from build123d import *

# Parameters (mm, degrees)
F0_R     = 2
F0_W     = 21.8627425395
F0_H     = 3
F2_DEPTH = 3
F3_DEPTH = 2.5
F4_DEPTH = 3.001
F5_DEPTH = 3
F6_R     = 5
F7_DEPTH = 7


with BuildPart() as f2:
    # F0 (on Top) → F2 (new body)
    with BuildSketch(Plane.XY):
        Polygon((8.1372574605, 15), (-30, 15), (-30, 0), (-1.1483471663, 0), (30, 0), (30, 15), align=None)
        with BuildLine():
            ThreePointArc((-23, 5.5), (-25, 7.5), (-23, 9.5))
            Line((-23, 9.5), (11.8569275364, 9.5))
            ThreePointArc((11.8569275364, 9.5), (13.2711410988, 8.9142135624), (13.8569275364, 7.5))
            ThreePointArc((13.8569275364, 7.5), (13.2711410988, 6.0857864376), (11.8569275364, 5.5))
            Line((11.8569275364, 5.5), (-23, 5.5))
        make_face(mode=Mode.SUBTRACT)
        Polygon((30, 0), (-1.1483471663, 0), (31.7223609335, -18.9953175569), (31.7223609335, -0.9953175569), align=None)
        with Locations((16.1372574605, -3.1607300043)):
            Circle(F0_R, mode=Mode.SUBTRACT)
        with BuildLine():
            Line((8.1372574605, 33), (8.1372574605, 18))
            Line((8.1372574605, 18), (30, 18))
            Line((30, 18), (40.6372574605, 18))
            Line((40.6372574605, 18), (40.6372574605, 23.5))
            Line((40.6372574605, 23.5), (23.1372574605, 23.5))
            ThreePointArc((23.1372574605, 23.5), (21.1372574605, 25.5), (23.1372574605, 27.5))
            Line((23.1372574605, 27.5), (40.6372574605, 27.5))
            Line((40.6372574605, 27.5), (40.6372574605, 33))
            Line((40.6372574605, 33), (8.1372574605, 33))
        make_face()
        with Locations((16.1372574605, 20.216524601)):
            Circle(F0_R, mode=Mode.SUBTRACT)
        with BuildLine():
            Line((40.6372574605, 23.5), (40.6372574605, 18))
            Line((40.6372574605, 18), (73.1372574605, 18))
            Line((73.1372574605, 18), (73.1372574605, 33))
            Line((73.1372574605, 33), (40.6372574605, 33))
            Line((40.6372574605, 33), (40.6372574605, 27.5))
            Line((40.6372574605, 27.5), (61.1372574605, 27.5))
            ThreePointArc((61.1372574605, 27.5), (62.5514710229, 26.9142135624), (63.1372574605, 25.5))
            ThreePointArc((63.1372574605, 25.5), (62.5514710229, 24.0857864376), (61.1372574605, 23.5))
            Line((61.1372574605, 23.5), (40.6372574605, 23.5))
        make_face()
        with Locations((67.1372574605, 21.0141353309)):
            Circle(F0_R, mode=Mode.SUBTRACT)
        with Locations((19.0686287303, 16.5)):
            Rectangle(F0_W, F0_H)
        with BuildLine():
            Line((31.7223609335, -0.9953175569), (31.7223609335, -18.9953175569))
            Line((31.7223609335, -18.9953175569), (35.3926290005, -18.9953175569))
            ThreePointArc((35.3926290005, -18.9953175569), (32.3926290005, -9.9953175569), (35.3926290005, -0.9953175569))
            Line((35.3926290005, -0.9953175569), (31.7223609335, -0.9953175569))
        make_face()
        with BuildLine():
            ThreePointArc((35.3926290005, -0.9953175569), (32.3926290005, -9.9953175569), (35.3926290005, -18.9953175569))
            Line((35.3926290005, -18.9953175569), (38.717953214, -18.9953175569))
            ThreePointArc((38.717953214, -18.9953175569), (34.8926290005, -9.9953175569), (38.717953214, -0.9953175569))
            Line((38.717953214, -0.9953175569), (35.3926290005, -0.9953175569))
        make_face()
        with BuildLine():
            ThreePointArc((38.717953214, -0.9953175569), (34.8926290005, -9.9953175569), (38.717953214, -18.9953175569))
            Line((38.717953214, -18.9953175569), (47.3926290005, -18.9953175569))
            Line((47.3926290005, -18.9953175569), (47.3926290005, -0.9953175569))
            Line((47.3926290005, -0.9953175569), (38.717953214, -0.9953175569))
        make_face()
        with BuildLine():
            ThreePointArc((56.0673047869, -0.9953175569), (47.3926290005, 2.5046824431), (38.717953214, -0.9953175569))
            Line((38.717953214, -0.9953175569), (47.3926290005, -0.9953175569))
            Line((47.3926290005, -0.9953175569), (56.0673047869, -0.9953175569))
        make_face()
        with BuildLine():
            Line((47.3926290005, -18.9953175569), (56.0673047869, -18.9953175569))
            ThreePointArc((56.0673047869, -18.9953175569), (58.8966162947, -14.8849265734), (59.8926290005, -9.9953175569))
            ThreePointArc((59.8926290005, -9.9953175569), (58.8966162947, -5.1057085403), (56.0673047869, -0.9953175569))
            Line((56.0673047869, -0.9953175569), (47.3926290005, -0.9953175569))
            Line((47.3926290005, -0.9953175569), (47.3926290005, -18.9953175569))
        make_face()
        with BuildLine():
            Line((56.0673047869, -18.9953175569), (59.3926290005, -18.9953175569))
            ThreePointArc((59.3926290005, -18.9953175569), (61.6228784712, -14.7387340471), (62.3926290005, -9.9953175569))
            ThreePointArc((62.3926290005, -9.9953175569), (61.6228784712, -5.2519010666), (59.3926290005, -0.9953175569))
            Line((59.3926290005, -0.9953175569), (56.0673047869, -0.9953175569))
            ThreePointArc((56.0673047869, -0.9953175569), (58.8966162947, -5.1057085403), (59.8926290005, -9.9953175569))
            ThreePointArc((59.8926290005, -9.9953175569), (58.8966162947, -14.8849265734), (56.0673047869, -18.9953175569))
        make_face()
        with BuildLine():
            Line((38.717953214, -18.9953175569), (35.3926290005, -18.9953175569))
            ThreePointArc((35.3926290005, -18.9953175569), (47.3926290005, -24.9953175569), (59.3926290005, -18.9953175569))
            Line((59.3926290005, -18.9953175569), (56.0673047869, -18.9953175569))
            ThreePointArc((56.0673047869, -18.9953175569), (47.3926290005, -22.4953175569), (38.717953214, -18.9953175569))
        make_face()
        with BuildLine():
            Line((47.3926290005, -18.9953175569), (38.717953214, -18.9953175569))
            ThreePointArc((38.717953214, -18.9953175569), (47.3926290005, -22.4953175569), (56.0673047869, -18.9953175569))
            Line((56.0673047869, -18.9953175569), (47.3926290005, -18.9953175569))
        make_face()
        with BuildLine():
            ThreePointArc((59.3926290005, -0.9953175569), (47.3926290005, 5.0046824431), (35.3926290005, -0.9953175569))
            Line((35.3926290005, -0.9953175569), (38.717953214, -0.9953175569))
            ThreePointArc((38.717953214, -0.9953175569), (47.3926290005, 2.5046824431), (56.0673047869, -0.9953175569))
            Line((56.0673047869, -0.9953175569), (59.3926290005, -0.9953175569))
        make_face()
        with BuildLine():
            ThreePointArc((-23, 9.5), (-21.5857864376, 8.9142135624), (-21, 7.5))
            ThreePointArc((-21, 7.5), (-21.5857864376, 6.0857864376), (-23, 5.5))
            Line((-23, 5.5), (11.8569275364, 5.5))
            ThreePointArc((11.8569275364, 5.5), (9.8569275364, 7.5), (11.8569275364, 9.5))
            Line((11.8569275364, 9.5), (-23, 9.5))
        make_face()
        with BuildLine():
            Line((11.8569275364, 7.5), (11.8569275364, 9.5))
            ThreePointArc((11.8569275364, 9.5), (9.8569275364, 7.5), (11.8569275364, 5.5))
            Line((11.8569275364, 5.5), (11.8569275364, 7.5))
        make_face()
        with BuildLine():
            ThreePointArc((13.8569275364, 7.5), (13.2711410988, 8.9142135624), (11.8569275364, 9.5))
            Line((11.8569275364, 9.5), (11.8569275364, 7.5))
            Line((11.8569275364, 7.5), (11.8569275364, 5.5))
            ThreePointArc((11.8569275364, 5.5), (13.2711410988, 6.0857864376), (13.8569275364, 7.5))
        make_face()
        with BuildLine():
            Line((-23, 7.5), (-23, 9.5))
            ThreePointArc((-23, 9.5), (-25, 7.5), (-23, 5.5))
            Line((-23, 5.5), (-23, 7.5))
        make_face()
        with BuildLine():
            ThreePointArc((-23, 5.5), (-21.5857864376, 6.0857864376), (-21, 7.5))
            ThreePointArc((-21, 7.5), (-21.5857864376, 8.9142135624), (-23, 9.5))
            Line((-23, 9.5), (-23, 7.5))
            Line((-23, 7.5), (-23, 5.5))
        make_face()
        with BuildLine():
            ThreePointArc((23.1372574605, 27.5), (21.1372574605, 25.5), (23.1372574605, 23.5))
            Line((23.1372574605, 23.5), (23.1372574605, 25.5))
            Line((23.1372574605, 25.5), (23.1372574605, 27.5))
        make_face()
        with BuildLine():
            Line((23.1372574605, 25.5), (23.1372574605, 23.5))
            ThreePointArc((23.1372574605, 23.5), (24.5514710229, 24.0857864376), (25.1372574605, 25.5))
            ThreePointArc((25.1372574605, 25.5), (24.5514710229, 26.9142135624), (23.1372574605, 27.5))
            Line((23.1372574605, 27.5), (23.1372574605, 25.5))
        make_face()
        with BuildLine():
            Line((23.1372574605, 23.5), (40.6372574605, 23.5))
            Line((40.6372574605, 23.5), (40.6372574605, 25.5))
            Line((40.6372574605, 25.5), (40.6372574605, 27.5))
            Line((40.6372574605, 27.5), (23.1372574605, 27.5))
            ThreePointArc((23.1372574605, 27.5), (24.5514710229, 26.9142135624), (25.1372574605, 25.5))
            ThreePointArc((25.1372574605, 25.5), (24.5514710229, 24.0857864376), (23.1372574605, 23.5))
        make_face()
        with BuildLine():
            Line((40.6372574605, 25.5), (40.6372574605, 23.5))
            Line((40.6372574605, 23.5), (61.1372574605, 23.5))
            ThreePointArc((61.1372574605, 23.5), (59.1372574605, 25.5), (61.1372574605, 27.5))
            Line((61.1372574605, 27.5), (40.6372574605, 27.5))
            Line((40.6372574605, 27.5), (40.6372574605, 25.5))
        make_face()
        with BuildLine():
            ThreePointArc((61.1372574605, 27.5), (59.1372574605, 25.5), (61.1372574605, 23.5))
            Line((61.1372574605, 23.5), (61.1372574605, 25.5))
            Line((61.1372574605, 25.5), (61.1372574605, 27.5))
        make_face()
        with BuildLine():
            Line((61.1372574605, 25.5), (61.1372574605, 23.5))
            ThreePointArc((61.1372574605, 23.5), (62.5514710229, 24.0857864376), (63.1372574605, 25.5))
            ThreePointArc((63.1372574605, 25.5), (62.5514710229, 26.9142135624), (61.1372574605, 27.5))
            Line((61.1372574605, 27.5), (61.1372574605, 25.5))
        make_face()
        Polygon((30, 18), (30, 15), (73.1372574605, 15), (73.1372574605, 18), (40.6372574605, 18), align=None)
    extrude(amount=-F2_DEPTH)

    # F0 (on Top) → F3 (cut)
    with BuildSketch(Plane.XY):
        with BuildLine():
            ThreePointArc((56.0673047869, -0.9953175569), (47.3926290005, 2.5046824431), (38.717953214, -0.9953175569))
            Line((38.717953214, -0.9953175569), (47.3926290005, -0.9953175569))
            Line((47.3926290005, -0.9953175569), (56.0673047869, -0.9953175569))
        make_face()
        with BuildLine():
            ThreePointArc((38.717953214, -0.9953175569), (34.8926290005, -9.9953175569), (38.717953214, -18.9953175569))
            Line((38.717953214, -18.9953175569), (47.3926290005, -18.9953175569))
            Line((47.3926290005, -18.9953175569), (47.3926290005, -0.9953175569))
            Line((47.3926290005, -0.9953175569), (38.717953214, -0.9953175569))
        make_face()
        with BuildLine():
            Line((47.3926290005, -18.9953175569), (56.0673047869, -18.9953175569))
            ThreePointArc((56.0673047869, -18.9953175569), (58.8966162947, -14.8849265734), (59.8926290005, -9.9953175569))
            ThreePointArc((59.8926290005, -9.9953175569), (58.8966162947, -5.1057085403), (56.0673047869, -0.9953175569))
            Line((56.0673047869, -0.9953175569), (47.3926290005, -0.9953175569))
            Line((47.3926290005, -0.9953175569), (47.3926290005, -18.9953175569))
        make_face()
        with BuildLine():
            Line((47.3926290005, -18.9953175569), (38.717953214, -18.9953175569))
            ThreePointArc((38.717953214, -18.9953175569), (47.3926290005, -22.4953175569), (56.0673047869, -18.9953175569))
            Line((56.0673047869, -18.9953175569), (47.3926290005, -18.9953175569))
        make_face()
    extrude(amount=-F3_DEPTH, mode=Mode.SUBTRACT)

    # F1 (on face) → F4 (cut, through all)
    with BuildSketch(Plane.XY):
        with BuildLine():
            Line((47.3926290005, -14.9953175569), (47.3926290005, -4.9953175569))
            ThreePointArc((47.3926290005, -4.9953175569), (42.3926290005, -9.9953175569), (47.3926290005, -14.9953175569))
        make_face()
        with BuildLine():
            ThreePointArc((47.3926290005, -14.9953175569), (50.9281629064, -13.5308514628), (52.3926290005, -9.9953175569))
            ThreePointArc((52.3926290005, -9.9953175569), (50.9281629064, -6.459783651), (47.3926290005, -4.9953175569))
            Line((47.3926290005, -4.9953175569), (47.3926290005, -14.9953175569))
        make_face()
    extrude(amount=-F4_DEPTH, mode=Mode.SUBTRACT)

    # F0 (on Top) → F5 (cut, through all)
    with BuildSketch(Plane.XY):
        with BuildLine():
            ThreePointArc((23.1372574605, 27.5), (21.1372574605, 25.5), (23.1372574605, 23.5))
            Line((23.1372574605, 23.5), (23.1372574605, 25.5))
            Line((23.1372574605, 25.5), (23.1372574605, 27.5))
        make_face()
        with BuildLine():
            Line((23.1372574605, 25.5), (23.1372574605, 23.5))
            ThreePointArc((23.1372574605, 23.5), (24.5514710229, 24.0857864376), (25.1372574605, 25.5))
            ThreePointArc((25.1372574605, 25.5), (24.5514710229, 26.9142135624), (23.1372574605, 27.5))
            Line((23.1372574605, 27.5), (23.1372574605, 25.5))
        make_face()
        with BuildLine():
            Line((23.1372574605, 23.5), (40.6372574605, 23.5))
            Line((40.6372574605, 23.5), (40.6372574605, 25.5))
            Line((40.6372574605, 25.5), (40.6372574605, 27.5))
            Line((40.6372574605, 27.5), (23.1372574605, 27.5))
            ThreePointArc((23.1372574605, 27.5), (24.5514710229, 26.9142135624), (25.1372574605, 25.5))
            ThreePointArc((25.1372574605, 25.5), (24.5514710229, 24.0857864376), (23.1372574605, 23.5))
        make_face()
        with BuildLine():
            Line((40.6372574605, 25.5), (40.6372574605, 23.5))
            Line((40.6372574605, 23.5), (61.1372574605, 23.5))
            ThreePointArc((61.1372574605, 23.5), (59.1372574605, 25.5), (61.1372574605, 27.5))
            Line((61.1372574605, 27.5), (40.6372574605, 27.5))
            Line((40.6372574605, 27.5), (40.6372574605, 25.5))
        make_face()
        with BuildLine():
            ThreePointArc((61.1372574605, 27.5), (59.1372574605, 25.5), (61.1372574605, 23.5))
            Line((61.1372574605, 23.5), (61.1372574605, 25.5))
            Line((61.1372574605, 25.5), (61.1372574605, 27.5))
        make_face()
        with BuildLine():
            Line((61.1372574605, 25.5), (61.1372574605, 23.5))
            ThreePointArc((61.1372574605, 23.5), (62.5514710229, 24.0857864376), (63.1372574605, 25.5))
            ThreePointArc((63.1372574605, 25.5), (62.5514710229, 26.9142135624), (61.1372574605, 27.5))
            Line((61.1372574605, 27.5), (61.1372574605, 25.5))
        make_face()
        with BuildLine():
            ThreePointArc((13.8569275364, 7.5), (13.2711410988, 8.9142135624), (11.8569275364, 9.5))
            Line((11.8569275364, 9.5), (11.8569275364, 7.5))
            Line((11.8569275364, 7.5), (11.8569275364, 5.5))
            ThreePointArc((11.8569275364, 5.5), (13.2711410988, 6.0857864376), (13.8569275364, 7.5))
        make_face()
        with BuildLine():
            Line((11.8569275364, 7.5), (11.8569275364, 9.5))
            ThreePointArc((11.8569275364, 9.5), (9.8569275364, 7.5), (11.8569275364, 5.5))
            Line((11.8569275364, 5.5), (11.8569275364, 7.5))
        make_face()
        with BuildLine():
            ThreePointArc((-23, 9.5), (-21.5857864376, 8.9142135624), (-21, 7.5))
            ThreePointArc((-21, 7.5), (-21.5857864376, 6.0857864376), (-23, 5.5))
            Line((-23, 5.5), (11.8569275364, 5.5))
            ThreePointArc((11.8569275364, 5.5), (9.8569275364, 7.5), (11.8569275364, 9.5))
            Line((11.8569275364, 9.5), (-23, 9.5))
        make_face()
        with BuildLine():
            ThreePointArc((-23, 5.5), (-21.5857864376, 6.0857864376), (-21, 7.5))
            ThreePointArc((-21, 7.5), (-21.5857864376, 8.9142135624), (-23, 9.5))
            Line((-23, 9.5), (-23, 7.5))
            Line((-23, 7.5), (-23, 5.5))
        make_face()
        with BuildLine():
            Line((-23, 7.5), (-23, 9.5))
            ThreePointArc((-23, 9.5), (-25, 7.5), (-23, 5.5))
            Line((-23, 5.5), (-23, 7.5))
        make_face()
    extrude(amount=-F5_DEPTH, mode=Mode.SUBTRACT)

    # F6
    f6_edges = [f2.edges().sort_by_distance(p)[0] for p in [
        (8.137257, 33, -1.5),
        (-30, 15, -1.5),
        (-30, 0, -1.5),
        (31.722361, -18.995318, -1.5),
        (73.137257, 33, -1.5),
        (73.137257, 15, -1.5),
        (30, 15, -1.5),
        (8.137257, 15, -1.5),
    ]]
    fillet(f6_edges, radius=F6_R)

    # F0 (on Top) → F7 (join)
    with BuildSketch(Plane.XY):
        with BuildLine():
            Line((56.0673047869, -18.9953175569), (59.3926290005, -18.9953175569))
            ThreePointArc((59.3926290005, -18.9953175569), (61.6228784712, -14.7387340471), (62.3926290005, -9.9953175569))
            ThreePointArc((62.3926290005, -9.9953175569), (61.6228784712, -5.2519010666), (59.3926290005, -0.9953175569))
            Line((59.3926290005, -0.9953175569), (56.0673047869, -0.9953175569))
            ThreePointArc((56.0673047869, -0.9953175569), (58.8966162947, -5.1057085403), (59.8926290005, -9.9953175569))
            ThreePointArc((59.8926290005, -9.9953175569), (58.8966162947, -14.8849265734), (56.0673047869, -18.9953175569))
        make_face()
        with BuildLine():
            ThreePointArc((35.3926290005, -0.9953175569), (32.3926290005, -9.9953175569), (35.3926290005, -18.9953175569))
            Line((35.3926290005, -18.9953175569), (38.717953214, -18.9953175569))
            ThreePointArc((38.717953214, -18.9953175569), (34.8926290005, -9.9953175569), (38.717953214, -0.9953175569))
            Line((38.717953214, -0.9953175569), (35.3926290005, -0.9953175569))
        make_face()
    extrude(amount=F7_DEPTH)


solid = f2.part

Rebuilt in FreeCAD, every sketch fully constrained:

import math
import FreeCAD as App
import Part
import Sketcher
from FreeCAD import Vector
Q = App.Units.Quantity


def edges_at(feature, points):
    """Names of the edges that pass closest to the given points."""
    edges = feature.Shape.Edges
    near = lambda p: min(range(len(edges)), key=lambda i: edges[i].distToShape(Part.Vertex(*p))[0])
    return sorted({f"Edge{near(p) + 1}" for p in points})

doc = App.newDocument("Part")
body = doc.addObject("PartDesign::Body", "Body")

sketch1 = body.newObject("Sketcher::SketchObject", "Sketch")
sketch1.AttachmentSupport = (doc.getObject("XY_Plane"), [""])
sketch1.MapMode = "FlatFace"
sketch1.addGeometry([
    Part.LineSegment(Vector(8.1, 15, 0), Vector(-30, 15, 0)),
    Part.LineSegment(Vector(-30, 15, 0), Vector(-30, 0, 0)),
    Part.LineSegment(Vector(-30, 0, 0), Vector(-1.1, 0, 0)),
    Part.LineSegment(Vector(-1.1, 0, 0), Vector(31.7, -19, 0)),
    Part.LineSegment(Vector(31.7, -19, 0), Vector(35.4, -19, 0)),
    Part.ArcOfCircle(Part.Circle(Vector(47.4, -10, 0), Vector(0, 0, 1), 15), math.radians(-143), math.radians(-37)),
    Part.ArcOfCircle(Part.Circle(Vector(47.4, -10, 0), Vector(0, 0, 1), 15), math.radians(-37), math.radians(0)),
    Part.ArcOfCircle(Part.Circle(Vector(47.4, -10, 0), Vector(0, 0, 1), 15), math.radians(0), math.radians(37)),
    Part.ArcOfCircle(Part.Circle(Vector(47.4, -10, 0), Vector(0, 0, 1), 15), math.radians(37), math.radians(143)),
    Part.LineSegment(Vector(35.4, -1, 0), Vector(31.7, -1, 0)),
    Part.LineSegment(Vector(31.7, -1, 0), Vector(30, 0, 0)),
    Part.LineSegment(Vector(30, 0, 0), Vector(30, 15, 0)),
    Part.LineSegment(Vector(30, 15, 0), Vector(73.1, 15, 0)),
    Part.LineSegment(Vector(73.1, 15, 0), Vector(73.1, 33, 0)),
    Part.LineSegment(Vector(73.1, 33, 0), Vector(8.1, 33, 0)),
    Part.LineSegment(Vector(8.1, 33, 0), Vector(8.1, 18, 0)),
    Part.LineSegment(Vector(8.1, 18, 0), Vector(8.1, 15, 0)),
    Part.Circle(Vector(16.1, -3.2, 0), Vector(0, 0, 1), 2),
    Part.Circle(Vector(16.1, 20.2, 0), Vector(0, 0, 1), 2),
    Part.Circle(Vector(67.1, 21, 0), Vector(0, 0, 1), 2),
], False)
sketch1.addConstraint([
    Sketcher.Constraint("Coincident", 0, 2, 1, 1),
    Sketcher.Constraint("Coincident", 1, 2, 2, 1),
    Sketcher.Constraint("Coincident", 2, 2, 3, 1),
    Sketcher.Constraint("Coincident", 3, 2, 4, 1),
    Sketcher.Constraint("Coincident", 4, 2, 5, 1),
    Sketcher.Constraint("Tangent", 5, 2, 6, 1),
    Sketcher.Constraint("Tangent", 6, 2, 7, 1),
    Sketcher.Constraint("Tangent", 7, 2, 8, 1),
    Sketcher.Constraint("Coincident", 8, 2, 9, 1),
    Sketcher.Constraint("Coincident", 9, 2, 10, 1),
    Sketcher.Constraint("Coincident", 10, 2, 11, 1),
    Sketcher.Constraint("Coincident", 11, 2, 12, 1),
    Sketcher.Constraint("Coincident", 12, 2, 13, 1),
    Sketcher.Constraint("Coincident", 13, 2, 14, 1),
    Sketcher.Constraint("Coincident", 14, 2, 15, 1),
    Sketcher.Constraint("Coincident", 15, 2, 16, 1),
    Sketcher.Constraint("Coincident", 16, 2, 0, 1),
    Sketcher.Constraint("Horizontal", 0),
    Sketcher.Constraint("Vertical", 1),
    Sketcher.Constraint("Horizontal", 2),
    Sketcher.Constraint("Horizontal", 4),
    Sketcher.Constraint("Horizontal", 9),
    Sketcher.Constraint("Vertical", 11),
    Sketcher.Constraint("Horizontal", 12),
    Sketcher.Constraint("Vertical", 13),
    Sketcher.Constraint("Horizontal", 14),
    Sketcher.Constraint("Vertical", 15),
    Sketcher.Constraint("Vertical", 16),
    Sketcher.Constraint("Coincident", 7, 3, 5, 3),
    Sketcher.Constraint("Equal", 7, 8),
    Sketcher.Constraint("Equal", 17, 18),
    Sketcher.Constraint("Equal", 18, 19),
    Sketcher.Constraint("Symmetric", 1, 2, 10, 2, -1, 1),
    Sketcher.Constraint("PointOnObject", 1, 2, -1),
    Sketcher.Constraint("Parallel", 3, 10),
    Sketcher.Constraint("Horizontal", 4, 2, 5, 2),
    Sketcher.Constraint("Horizontal", 8, 3, 6, 2),
    Sketcher.Constraint("Horizontal", 7, 2, 8, 2),
    Sketcher.Constraint("Horizontal", 0, 2, 11, 2),
    Sketcher.Constraint("Vertical", 17, 3, 18, 3),
    Sketcher.Constraint("Vertical", 5, 2, 7, 2),
    Sketcher.Constraint("Vertical", 3, 2, 9, 2),
    Sketcher.Constraint("Equal", 11, 15),
    Sketcher.Constraint("Diameter", 17, Q("4 mm")),
    Sketcher.Constraint("Radius", 5, Q("15 mm")),
    Sketcher.Constraint("DistanceX", 14, 2, 14, 1, Q("65 mm")),
    Sketcher.Constraint("DistanceY", 1, 2, 1, 1, Q("15 mm")),
    Sketcher.Constraint("DistanceY", 13, 1, 13, 2, Q("18 mm")),
    Sketcher.Constraint("DistanceX", 0, 2, -1, 1, Q("30 mm")),
    Sketcher.Constraint("DistanceX", 18, 3, 19, 3, Q("51 mm")),
    Sketcher.Constraint("DistanceY", 3, 2, 6, 3, Q("9 mm")),
    Sketcher.Constraint("DistanceX", 19, 3, 12, 2, Q("6 mm")),
    Sketcher.Constraint("DistanceX", 4, 1, 4, 2, Q("3.670268 mm")),
    Sketcher.Constraint("Distance", 3, Q("37.96453 mm")),
    Sketcher.Constraint("DistanceX", 0, 2, 0, 1, Q("38.137257 mm")),
    Sketcher.Constraint("DistanceX", 2, 1, 2, 2, Q("28.851653 mm")),
    Sketcher.Constraint("DistanceY", 17, 3, -1, 1, Q("3.16073 mm")),
    Sketcher.Constraint("DistanceY", 18, 3, 19, 3, Q("0.797611 mm")),
    Sketcher.Constraint("DistanceY", -1, 1, 18, 3, Q("20.216525 mm")),
])
pad1 = body.newObject("PartDesign::Pad", "Pad")
pad1.Profile = sketch1
pad1.Length = 3
pad1.Reversed = True

sketch2 = body.newObject("Sketcher::SketchObject", "Sketch001")
sketch2.AttachmentSupport = (doc.getObject("XY_Plane"), [""])
sketch2.MapMode = "FlatFace"
sketch2.addGeometry([
    Part.ArcOfCircle(Part.Circle(Vector(47, -10, 0), Vector(0, 0, 1), 12), math.radians(46), math.radians(134)),
    Part.ArcOfCircle(Part.Circle(Vector(47, -10, 0), Vector(0, 0, 1), 12), math.radians(134), math.radians(226)),
    Part.ArcOfCircle(Part.Circle(Vector(47, -10, 0), Vector(0, 0, 1), 12), math.radians(-134), math.radians(-46)),
    Part.ArcOfCircle(Part.Circle(Vector(47, -10, 0), Vector(0, 0, 1), 12), math.radians(-46), math.radians(0)),
    Part.ArcOfCircle(Part.Circle(Vector(47, -10, 0), Vector(0, 0, 1), 12), math.radians(0), math.radians(46)),
], False)
sketch2.addConstraint([
    Sketcher.Constraint("Tangent", 0, 2, 1, 1),
    Sketcher.Constraint("Tangent", 1, 2, 2, 1),
    Sketcher.Constraint("Tangent", 2, 2, 3, 1),
    Sketcher.Constraint("Tangent", 3, 2, 4, 1),
    Sketcher.Constraint("Tangent", 4, 2, 0, 1),
    Sketcher.Constraint("Coincident", 2, 3, 0, 3),
    Sketcher.Constraint("Horizontal", 1, 2, 2, 2),
    Sketcher.Constraint("Horizontal", 4, 3, 3, 2),
    Sketcher.Constraint("Horizontal", 0, 2, 4, 2),
    Sketcher.Constraint("Vertical", 0, 2, 1, 2),
    Sketcher.Constraint("Radius", 0, Q("12.5 mm")),
    Sketcher.Constraint("DistanceY", 0, 3, 0, 2, Q("9 mm")),
    Sketcher.Constraint("DistanceX", -1, 1, 0, 3, Q("47.392629 mm")),
    Sketcher.Constraint("DistanceY", 0, 3, -1, 1, Q("9.995318 mm")),
])
pocket1 = body.newObject("PartDesign::Pocket", "Pocket")
pocket1.Profile = sketch2
pocket1.Length = 2.5

sketch3 = body.newObject("Sketcher::SketchObject", "Sketch002")
sketch3.AttachmentSupport = (doc.getObject("XY_Plane"), [""])
sketch3.MapMode = "FlatFace"
sketch3.addGeometry([
    Part.ArcOfCircle(Part.Circle(Vector(47, -10, 0), Vector(0, 0, 1), 5), math.radians(90), math.radians(270)),
    Part.ArcOfCircle(Part.Circle(Vector(47, -10, 0), Vector(0, 0, 1), 5), math.radians(-90), math.radians(0)),
    Part.ArcOfCircle(Part.Circle(Vector(47, -10, 0), Vector(0, 0, 1), 5), math.radians(0), math.radians(90)),
], False)
sketch3.addConstraint([
    Sketcher.Constraint("Tangent", 0, 2, 1, 1),
    Sketcher.Constraint("Tangent", 1, 2, 2, 1),
    Sketcher.Constraint("Tangent", 2, 2, 0, 1),
    Sketcher.Constraint("Horizontal", 2, 3, 1, 2),
    Sketcher.Constraint("Vertical", 2, 3, 0, 2),
    Sketcher.Constraint("Vertical", 0, 2, 2, 2),
    Sketcher.Constraint("Radius", 0, Q("5 mm")),
    Sketcher.Constraint("DistanceX", -1, 1, 0, 3, Q("47.392629 mm")),
    Sketcher.Constraint("DistanceY", 0, 3, -1, 1, Q("9.995318 mm")),
])
pocket2 = body.newObject("PartDesign::Pocket", "Pocket001")
pocket2.Profile = sketch3
pocket2.Type = "ThroughAll"

sketch4 = body.newObject("Sketcher::SketchObject", "Sketch003")
sketch4.AttachmentSupport = (doc.getObject("XY_Plane"), [""])
sketch4.MapMode = "FlatFace"
sketch4.addGeometry([
    Part.ArcOfCircle(Part.Circle(Vector(23.1, 25.5, 0), Vector(0, 0, 1), 2), math.radians(90), math.radians(270)),
    Part.LineSegment(Vector(23.1, 23.5, 0), Vector(61.1, 23.5, 0)),
    Part.ArcOfCircle(Part.Circle(Vector(61.1, 25.5, 0), Vector(0, 0, 1), 2), math.radians(-90), math.radians(0)),
    Part.ArcOfCircle(Part.Circle(Vector(61.1, 25.5, 0), Vector(0, 0, 1), 2), math.radians(0), math.radians(90)),
    Part.LineSegment(Vector(61.1, 27.5, 0), Vector(23.1, 27.5, 0)),
    Part.ArcOfCircle(Part.Circle(Vector(11.9, 7.5, 0), Vector(0, 0, 1), 2), math.radians(0), math.radians(90)),
    Part.LineSegment(Vector(11.9, 9.5, 0), Vector(-23, 9.5, 0)),
    Part.ArcOfCircle(Part.Circle(Vector(-23, 7.5, 0), Vector(0, 0, 1), 2), math.radians(90), math.radians(270)),
    Part.LineSegment(Vector(-23, 5.5, 0), Vector(11.9, 5.5, 0)),
    Part.ArcOfCircle(Part.Circle(Vector(11.9, 7.5, 0), Vector(0, 0, 1), 2), math.radians(-90), math.radians(0)),
], False)
sketch4.addConstraint([
    Sketcher.Constraint("Tangent", 0, 2, 1, 1),
    Sketcher.Constraint("Tangent", 1, 2, 2, 1),
    Sketcher.Constraint("Tangent", 2, 2, 3, 1),
    Sketcher.Constraint("Tangent", 3, 2, 4, 1),
    Sketcher.Constraint("Tangent", 4, 2, 0, 1),
    Sketcher.Constraint("Tangent", 5, 2, 6, 1),
    Sketcher.Constraint("Tangent", 6, 2, 7, 1),
    Sketcher.Constraint("Tangent", 7, 2, 8, 1),
    Sketcher.Constraint("Tangent", 8, 2, 9, 1),
    Sketcher.Constraint("Tangent", 9, 2, 5, 1),
    Sketcher.Constraint("Horizontal", 1),
    Sketcher.Constraint("Horizontal", 4),
    Sketcher.Constraint("Horizontal", 6),
    Sketcher.Constraint("Horizontal", 8),
    Sketcher.Constraint("Equal", 0, 2),
    Sketcher.Constraint("Equal", 3, 5),
    Sketcher.Constraint("Equal", 5, 7),
    Sketcher.Constraint("Horizontal", 3, 3, 2, 2),
    Sketcher.Constraint("Horizontal", 7, 3, 9, 2),
    Sketcher.Constraint("Radius", 0, Q("2 mm")),
    Sketcher.Constraint("DistanceX", 1, 1, 1, 2, Q("38 mm")),
    Sketcher.Constraint("DistanceX", 7, 3, -1, 1, Q("23 mm")),
    Sketcher.Constraint("DistanceY", 5, 3, 0, 3, Q("18 mm")),
    Sketcher.Constraint("DistanceY", -1, 1, 0, 3, Q("25.5 mm")),
    Sketcher.Constraint("DistanceX", 6, 2, 6, 1, Q("34.856928 mm")),
    Sketcher.Constraint("DistanceX", 5, 3, 0, 3, Q("11.28033 mm")),
])
pocket3 = body.newObject("PartDesign::Pocket", "Pocket002")
pocket3.Profile = sketch4
pocket3.Type = "ThroughAll"
doc.recompute()

fillet = body.newObject("PartDesign::Fillet", "Fillet")
fillet.Base = (pocket3, edges_at(pocket3, [
    (8.137, 33, -1.5),
    (-30, 15, -1.5),
    (-30, 0, -1.5),
    (31.722, -18.995, -1.5),
    (73.137, 33, -1.5),
    (73.137, 15, -1.5),
    (30, 15, -1.5),
    (8.137, 15, -1.5),
]))
fillet.Radius = 5

sketch5 = body.newObject("Sketcher::SketchObject", "Sketch004")
sketch5.AttachmentSupport = (doc.getObject("XY_Plane"), [""])
sketch5.MapMode = "FlatFace"
sketch5.addGeometry([
    Part.LineSegment(Vector(56.1, -19, 0), Vector(59.4, -19, 0)),
    Part.ArcOfCircle(Part.Circle(Vector(47.4, -10, 0), Vector(0, 0, 1), 15), math.radians(-37), math.radians(0)),
    Part.ArcOfCircle(Part.Circle(Vector(47.4, -10, 0), Vector(0, 0, 1), 15), math.radians(0), math.radians(37)),
    Part.LineSegment(Vector(59.4, -1, 0), Vector(56.1, -1, 0)),
    Part.ArcOfCircle(Part.Circle(Vector(47.4, -10, 0), Vector(0, 0, 1), 12.5), math.radians(0), math.radians(46)),
    Part.ArcOfCircle(Part.Circle(Vector(47.4, -10, 0), Vector(0, 0, 1), 12.5), math.radians(-46), math.radians(0)),
    Part.ArcOfCircle(Part.Circle(Vector(47.4, -10, 0), Vector(0, 0, 1), 15), math.radians(143), math.radians(217)),
    Part.LineSegment(Vector(35.4, -19, 0), Vector(38.7, -19, 0)),
    Part.ArcOfCircle(Part.Circle(Vector(47.4, -10, 0), Vector(0, 0, 1), 12.5), math.radians(134), math.radians(226)),
    Part.LineSegment(Vector(38.7, -1, 0), Vector(35.4, -1, 0)),
], False)
sketch5.addConstraint([
    Sketcher.Constraint("Coincident", 0, 2, 1, 1),
    Sketcher.Constraint("Tangent", 1, 2, 2, 1),
    Sketcher.Constraint("Coincident", 2, 2, 3, 1),
    Sketcher.Constraint("Coincident", 3, 2, 4, 2),
    Sketcher.Constraint("Tangent", 4, 1, 5, 2),
    Sketcher.Constraint("Coincident", 5, 1, 0, 1),
    Sketcher.Constraint("Coincident", 6, 2, 7, 1),
    Sketcher.Constraint("Coincident", 7, 2, 8, 2),
    Sketcher.Constraint("Coincident", 8, 1, 9, 1),
    Sketcher.Constraint("Coincident", 9, 2, 6, 1),
    Sketcher.Constraint("Horizontal", 0),
    Sketcher.Constraint("Horizontal", 3),
    Sketcher.Constraint("Horizontal", 7),
    Sketcher.Constraint("Horizontal", 9),
    Sketcher.Constraint("Coincident", 4, 3, 1, 3),
    Sketcher.Constraint("Coincident", 6, 3, 1, 3),
    Sketcher.Constraint("Coincident", 8, 3, 1, 3),
    Sketcher.Constraint("Equal", 1, 2),
    Sketcher.Constraint("Equal", 4, 5),
    Sketcher.Constraint("Equal", 2, 6),
    Sketcher.Constraint("Equal", 5, 8),
    Sketcher.Constraint("Horizontal", 8, 3, 1, 2),
    Sketcher.Constraint("Horizontal", 1, 2, 4, 1),
    Sketcher.Constraint("Horizontal", 5, 1, 6, 2),
    Sketcher.Constraint("Horizontal", 3, 2, 8, 1),
    Sketcher.Constraint("Vertical", 0, 2, 2, 2),
    Sketcher.Constraint("Radius", 1, Q("15 mm")),
    Sketcher.Constraint("Radius", 4, Q("12.5 mm")),
    Sketcher.Constraint("DistanceX", 4, 3, 0, 2, Q("12 mm")),
    Sketcher.Constraint("DistanceX", -1, 1, 1, 3, Q("47.392629 mm")),
    Sketcher.Constraint("DistanceY", 1, 3, -1, 1, Q("9.995318 mm")),
])
pad2 = body.newObject("PartDesign::Pad", "Pad001")
pad2.Profile = sketch5
pad2.Length = 7

doc.recompute()
